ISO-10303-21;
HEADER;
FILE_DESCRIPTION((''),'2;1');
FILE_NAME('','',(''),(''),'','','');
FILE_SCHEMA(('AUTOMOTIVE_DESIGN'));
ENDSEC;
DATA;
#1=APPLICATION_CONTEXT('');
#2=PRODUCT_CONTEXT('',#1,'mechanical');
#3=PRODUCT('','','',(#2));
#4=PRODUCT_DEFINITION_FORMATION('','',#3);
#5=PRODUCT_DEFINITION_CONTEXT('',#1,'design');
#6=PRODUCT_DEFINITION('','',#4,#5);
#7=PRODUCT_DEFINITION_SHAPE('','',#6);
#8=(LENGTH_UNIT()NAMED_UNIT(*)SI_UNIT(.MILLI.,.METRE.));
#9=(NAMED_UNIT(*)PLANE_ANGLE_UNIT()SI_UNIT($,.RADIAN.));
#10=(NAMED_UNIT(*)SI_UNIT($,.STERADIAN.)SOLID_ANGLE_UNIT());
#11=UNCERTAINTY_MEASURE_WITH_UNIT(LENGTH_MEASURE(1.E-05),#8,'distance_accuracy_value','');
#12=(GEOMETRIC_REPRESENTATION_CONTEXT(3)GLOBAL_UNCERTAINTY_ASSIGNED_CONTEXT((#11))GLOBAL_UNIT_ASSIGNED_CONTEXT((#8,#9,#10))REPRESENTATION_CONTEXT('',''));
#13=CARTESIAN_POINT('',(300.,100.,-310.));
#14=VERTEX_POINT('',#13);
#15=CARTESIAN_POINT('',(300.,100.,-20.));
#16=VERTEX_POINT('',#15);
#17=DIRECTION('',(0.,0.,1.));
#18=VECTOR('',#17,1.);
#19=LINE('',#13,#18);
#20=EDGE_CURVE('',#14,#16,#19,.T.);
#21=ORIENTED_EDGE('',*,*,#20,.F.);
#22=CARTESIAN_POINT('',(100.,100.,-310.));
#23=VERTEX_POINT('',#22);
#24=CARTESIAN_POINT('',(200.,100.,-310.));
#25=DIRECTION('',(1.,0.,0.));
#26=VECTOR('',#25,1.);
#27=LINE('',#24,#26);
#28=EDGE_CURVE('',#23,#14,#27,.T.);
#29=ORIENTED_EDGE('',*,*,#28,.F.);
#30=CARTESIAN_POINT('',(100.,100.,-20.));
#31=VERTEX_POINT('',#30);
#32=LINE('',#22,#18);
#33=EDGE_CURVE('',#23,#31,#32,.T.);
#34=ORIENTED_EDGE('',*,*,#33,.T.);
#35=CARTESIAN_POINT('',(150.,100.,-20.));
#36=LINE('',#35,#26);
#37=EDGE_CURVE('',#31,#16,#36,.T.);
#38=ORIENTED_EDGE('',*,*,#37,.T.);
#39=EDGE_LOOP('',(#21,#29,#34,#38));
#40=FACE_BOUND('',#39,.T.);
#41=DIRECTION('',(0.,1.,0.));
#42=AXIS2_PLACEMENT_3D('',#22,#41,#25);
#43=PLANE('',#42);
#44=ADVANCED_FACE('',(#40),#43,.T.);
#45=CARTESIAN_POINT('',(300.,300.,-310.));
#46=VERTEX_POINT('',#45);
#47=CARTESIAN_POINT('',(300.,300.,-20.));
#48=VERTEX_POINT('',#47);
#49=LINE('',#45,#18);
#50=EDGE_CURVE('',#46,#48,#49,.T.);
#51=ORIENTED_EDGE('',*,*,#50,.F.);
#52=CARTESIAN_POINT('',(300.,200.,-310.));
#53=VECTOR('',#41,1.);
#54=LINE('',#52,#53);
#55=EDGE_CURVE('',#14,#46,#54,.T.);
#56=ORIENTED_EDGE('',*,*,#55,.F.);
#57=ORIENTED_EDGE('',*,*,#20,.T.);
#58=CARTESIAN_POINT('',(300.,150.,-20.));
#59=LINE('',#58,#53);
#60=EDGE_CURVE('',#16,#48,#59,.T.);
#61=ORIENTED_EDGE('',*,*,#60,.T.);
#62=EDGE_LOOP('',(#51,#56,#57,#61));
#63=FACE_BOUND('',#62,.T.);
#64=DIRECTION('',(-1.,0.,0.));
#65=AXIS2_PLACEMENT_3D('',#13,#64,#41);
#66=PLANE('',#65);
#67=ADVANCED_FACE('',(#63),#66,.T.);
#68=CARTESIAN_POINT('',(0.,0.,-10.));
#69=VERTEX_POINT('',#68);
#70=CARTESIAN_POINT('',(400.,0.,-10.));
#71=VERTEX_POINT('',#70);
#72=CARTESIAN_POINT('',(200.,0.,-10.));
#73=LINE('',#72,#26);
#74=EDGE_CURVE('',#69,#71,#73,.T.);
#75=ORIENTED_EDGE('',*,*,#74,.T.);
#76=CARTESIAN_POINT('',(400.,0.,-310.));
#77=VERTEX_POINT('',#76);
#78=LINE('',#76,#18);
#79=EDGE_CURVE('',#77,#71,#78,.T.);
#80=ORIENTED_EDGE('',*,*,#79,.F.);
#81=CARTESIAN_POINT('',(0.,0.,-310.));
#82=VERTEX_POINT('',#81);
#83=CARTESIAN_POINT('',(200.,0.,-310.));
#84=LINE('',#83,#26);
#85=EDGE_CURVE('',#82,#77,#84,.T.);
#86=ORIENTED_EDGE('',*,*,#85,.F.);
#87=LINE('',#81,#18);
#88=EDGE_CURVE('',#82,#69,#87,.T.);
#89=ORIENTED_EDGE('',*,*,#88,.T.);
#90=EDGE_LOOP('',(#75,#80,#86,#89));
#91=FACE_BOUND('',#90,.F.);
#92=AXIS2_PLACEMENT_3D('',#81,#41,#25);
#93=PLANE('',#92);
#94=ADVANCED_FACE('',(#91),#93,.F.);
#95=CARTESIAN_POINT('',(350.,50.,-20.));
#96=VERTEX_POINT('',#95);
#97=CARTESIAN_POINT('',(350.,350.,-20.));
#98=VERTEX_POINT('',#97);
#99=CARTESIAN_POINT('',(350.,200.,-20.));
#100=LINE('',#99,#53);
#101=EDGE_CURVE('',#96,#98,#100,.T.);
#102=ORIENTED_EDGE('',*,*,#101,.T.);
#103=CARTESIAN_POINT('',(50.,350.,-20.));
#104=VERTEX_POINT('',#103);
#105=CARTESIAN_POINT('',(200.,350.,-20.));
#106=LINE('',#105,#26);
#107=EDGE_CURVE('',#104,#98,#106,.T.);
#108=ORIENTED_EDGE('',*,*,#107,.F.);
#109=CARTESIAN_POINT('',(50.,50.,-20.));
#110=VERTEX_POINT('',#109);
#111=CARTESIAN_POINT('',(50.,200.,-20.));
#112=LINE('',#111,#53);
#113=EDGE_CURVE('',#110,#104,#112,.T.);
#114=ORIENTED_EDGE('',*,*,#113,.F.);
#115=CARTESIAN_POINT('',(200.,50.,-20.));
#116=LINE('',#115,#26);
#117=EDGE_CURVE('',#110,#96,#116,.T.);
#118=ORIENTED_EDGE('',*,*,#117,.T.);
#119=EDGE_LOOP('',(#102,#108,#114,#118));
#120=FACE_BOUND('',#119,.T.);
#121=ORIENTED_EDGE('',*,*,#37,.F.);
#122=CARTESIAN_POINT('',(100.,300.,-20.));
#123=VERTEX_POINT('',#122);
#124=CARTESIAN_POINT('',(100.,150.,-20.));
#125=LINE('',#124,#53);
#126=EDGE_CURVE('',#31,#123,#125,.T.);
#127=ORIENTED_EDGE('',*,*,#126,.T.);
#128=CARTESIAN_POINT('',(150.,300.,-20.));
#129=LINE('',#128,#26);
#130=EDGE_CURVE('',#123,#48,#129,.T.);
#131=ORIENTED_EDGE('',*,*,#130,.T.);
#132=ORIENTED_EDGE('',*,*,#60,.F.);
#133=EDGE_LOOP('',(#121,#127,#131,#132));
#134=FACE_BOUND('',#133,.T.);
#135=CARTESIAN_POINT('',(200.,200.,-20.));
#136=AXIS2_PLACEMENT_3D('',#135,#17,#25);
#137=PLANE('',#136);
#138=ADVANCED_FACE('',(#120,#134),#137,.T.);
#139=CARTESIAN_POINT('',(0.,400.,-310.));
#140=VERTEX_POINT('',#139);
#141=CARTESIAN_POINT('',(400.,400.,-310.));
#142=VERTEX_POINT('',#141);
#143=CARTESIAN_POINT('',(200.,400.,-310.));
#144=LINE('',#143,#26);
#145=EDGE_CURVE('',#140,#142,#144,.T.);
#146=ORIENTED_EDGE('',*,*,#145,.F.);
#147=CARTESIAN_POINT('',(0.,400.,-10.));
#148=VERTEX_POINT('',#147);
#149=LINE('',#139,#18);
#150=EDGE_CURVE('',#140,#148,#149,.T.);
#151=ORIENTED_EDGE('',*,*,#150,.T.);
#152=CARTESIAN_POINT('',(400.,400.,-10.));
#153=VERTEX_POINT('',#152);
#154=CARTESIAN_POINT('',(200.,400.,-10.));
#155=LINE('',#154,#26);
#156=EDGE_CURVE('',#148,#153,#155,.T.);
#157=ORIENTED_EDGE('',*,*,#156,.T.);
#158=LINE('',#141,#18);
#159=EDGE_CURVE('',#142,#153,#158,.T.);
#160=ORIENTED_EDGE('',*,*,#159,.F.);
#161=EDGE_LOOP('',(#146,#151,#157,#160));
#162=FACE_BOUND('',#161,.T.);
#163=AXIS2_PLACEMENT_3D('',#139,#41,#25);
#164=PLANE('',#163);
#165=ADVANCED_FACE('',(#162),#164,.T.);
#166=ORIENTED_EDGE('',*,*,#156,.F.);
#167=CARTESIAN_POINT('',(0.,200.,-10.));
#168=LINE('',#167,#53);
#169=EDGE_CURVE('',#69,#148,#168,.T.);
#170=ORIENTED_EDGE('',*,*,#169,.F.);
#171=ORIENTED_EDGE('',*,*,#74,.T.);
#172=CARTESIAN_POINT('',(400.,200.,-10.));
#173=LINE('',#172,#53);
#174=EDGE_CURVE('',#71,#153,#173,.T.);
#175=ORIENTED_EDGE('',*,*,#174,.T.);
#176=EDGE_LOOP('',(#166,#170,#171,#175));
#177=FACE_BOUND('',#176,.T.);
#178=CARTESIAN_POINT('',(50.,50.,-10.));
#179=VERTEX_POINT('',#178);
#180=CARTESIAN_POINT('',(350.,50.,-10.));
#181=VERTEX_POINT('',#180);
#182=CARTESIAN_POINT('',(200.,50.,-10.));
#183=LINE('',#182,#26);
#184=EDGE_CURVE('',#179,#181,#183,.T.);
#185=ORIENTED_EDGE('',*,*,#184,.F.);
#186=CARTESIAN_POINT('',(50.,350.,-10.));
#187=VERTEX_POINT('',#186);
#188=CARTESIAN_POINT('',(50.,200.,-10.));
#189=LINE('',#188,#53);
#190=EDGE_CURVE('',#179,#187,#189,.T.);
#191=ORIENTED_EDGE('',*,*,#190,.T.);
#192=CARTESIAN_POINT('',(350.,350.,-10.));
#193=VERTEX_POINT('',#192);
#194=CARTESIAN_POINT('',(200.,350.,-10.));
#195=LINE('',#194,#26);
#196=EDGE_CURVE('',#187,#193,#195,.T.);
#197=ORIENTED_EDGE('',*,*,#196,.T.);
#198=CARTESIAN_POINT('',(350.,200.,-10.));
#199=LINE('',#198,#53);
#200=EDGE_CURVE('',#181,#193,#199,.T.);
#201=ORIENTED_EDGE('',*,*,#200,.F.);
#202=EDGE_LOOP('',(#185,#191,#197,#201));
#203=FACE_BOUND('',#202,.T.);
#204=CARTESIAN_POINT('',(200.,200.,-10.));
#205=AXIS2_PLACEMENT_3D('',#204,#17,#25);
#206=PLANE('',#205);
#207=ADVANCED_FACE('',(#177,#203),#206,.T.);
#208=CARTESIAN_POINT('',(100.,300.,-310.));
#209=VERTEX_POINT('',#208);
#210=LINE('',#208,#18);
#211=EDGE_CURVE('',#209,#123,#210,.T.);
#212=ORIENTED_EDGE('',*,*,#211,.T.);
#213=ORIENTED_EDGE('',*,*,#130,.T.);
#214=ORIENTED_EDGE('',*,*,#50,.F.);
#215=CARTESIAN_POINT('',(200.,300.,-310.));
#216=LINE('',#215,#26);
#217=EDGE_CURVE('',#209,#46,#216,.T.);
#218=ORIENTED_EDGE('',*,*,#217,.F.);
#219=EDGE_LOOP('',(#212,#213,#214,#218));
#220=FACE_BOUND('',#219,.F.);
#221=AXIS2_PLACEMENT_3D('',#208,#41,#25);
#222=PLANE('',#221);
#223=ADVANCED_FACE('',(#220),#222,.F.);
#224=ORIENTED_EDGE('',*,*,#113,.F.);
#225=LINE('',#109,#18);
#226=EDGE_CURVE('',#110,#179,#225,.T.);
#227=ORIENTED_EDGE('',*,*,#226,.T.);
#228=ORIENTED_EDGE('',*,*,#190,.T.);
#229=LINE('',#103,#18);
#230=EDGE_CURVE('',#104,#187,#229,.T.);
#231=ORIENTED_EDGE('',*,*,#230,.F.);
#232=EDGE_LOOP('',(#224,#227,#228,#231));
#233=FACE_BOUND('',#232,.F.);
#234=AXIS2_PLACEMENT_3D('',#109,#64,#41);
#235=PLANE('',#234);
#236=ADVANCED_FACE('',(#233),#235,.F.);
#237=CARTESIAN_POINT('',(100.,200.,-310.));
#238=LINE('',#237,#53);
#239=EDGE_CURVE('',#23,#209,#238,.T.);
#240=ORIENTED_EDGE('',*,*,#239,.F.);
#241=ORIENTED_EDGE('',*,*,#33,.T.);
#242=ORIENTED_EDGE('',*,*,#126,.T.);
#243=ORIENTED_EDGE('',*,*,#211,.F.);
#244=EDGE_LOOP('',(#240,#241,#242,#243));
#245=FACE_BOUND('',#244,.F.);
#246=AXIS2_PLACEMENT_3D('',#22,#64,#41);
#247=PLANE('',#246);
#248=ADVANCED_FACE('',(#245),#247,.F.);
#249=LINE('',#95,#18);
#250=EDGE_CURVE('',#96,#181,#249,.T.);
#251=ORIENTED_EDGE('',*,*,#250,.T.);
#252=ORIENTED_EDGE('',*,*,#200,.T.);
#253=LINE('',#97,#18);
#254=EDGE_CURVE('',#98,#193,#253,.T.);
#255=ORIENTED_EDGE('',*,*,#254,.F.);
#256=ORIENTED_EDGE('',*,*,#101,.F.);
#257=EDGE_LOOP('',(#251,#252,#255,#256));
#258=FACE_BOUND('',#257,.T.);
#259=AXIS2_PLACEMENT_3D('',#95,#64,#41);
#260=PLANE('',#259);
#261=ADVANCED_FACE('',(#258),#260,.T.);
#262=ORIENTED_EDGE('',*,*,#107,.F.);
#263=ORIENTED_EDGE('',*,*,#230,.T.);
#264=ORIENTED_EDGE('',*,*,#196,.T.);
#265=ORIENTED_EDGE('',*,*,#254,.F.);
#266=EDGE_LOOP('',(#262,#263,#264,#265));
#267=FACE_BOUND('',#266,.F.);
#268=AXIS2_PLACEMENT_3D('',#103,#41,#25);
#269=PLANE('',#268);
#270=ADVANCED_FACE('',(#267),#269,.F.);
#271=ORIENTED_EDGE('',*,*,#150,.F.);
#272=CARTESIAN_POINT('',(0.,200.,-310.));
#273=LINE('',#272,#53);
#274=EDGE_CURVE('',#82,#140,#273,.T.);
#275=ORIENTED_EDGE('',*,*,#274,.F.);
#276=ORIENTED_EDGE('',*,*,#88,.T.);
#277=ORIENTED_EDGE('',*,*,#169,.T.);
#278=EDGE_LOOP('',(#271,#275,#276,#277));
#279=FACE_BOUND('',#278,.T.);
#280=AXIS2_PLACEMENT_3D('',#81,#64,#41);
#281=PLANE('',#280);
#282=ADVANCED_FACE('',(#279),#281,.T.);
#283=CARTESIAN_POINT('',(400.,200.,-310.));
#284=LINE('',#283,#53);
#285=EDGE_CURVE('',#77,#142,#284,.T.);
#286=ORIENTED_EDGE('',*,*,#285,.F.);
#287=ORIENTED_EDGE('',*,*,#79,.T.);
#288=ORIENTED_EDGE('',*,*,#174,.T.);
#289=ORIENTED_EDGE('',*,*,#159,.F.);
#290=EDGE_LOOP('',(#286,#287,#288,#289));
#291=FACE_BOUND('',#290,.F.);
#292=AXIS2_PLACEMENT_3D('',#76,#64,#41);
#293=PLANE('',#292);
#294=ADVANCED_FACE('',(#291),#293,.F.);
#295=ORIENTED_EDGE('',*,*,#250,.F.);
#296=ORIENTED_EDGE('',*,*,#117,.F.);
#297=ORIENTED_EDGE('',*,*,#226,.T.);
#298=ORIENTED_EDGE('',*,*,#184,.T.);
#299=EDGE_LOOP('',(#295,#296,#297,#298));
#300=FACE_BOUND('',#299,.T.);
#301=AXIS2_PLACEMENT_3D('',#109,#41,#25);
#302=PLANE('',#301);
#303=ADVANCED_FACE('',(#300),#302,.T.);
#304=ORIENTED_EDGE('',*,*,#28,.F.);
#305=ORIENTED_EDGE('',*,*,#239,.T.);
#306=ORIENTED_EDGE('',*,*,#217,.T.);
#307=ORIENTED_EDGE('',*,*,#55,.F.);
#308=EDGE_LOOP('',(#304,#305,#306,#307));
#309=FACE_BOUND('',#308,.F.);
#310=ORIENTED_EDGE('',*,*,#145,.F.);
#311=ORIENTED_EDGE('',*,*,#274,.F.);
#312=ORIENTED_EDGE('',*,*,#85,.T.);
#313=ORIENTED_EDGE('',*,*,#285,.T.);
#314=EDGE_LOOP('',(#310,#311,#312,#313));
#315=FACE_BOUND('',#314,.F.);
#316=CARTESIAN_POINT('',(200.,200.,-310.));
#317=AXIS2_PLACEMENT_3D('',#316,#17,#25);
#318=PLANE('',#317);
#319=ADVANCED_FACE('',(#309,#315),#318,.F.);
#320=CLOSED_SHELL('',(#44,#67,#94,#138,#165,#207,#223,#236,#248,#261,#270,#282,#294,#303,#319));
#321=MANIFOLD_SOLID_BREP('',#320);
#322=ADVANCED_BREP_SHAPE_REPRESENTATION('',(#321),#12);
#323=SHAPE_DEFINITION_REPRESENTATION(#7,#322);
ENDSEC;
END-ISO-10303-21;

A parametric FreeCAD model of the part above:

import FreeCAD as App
import Part
import Sketcher

V = App.Vector

doc = App.newDocument("Part")
body = doc.addObject("PartDesign::Body", "Body")

# Sketch on XY plane
sketch1 = body.newObject("Sketcher::SketchObject", "Sketch")
sketch1.AttachmentSupport = (doc.getObject("XY_Plane"), [""])
sketch1.MapMode = "FlatFace"
sketch1.AttachmentOffset = App.Placement(V(0, 0, -20), App.Rotation())
sketch1.addGeometry(Part.LineSegment(V(50, 350, 0), V(50, 50, 0)), False)
sketch1.addGeometry(Part.LineSegment(V(50, 50, 0), V(350, 50, 0)), False)
sketch1.addGeometry(Part.LineSegment(V(350, 50, 0), V(350, 350, 0)), False)
sketch1.addGeometry(Part.LineSegment(V(350, 350, 0), V(50, 350, 0)), False)
sketch1.addConstraint(Sketcher.Constraint("Coincident", 0, 2, 1, 1))
sketch1.addConstraint(Sketcher.Constraint("Coincident", 1, 2, 2, 1))
sketch1.addConstraint(Sketcher.Constraint("Coincident", 2, 2, 3, 1))
sketch1.addConstraint(Sketcher.Constraint("Coincident", 3, 2, 0, 1))
sketch1.addConstraint(Sketcher.Constraint("Vertical", 0))
sketch1.addConstraint(Sketcher.Constraint("Horizontal", 1))
sketch1.addConstraint(Sketcher.Constraint("Vertical", 2))
sketch1.addConstraint(Sketcher.Constraint("Horizontal", 3))
sketch1.addConstraint(Sketcher.Constraint("Equal", 3, 0))
sketch1.addConstraint(Sketcher.Constraint("DistanceX", 1, 1, 1, 2, 300.0))
sketch1.addConstraint(Sketcher.Constraint("DistanceX", -1, 1, 0, 2, 50.0))
sketch1.addConstraint(Sketcher.Constraint("DistanceY", -1, 1, 0, 2, 50.0))
pad1 = body.newObject("PartDesign::Pad", "Pad")
pad1.Profile = sketch1
pad1.Length = 10
body2 = doc.addObject("PartDesign::Body", "Body001")

# Sketch on XY plane
sketch2 = body2.newObject("Sketcher::SketchObject", "Sketch001")
sketch2.AttachmentSupport = (doc.getObject("XY_Plane001"), [""])
sketch2.MapMode = "FlatFace"
sketch2.AttachmentOffset = App.Placement(V(0, 0, -310), App.Rotation())
sketch2.addGeometry(Part.LineSegment(V(100, 300, 0), V(100, 100, 0)), False)
sketch2.addGeometry(Part.LineSegment(V(100, 100, 0), V(300, 100, 0)), False)
sketch2.addGeometry(Part.LineSegment(V(300, 100, 0), V(300, 300, 0)), False)
sketch2.addGeometry(Part.LineSegment(V(300, 300, 0), V(100, 300, 0)), False)
sketch2.addConstraint(Sketcher.Constraint("Coincident", 0, 2, 1, 1))
sketch2.addConstraint(Sketcher.Constraint("Coincident", 1, 2, 2, 1))
sketch2.addConstraint(Sketcher.Constraint("Coincident", 2, 2, 3, 1))
sketch2.addConstraint(Sketcher.Constraint("Coincident", 3, 2, 0, 1))
sketch2.addConstraint(Sketcher.Constraint("Vertical", 0))
sketch2.addConstraint(Sketcher.Constraint("Horizontal", 1))
sketch2.addConstraint(Sketcher.Constraint("Vertical", 2))
sketch2.addConstraint(Sketcher.Constraint("Horizontal", 3))
sketch2.addConstraint(Sketcher.Constraint("Equal", 3, 0))
sketch2.addConstraint(Sketcher.Constraint("DistanceX", 1, 1, 1, 2, 200.0))
sketch2.addConstraint(Sketcher.Constraint("DistanceX", -1, 1, 0, 2, 100.0))
sketch2.addConstraint(Sketcher.Constraint("DistanceY", -1, 1, 0, 2, 100.0))
pad2 = body2.newObject("PartDesign::Pad", "Pad001")
pad2.Profile = sketch2
pad2.Length = 300
body3 = doc.addObject("PartDesign::Body", "Body002")

# Sketch on XY plane
sketch3 = body3.newObject("Sketcher::SketchObject", "Sketch002")
sketch3.AttachmentSupport = (doc.getObject("XY_Plane002"), [""])
sketch3.MapMode = "FlatFace"
sketch3.AttachmentOffset = App.Placement(V(0, 0, -310), App.Rotation())
sketch3.addGeometry(Part.LineSegment(V(0, 400, 0), V(0, 0, 0)), False)
sketch3.addGeometry(Part.LineSegment(V(0, 0, 0), V(400, 0, 0)), False)
sketch3.addGeometry(Part.LineSegment(V(400, 0, 0), V(400, 400, 0)), False)
sketch3.addGeometry(Part.LineSegment(V(400, 400, 0), V(0, 400, 0)), False)
sketch3.addConstraint(Sketcher.Constraint("Coincident", 0, 2, 1, 1))
sketch3.addConstraint(Sketcher.Constraint("Coincident", 1, 2, 2, 1))
sketch3.addConstraint(Sketcher.Constraint("Coincident", 2, 2, 3, 1))
sketch3.addConstraint(Sketcher.Constraint("Coincident", 3, 2, 0, 1))
sketch3.addConstraint(Sketcher.Constraint("Vertical", 0))
sketch3.addConstraint(Sketcher.Constraint("Horizontal", 1))
sketch3.addConstraint(Sketcher.Constraint("Vertical", 2))
sketch3.addConstraint(Sketcher.Constraint("Horizontal", 3))
sketch3.addConstraint(Sketcher.Constraint("Coincident", 0, 2, -1, 1))
sketch3.addConstraint(Sketcher.Constraint("Equal", 3, 0))
sketch3.addConstraint(Sketcher.Constraint("DistanceX", 1, 1, 1, 2, 400.0))
pad3 = body3.newObject("PartDesign::Pad", "Pad002")
pad3.Profile = sketch3
pad3.Length = 300
doc.recompute()

boolean = body3.newObject("PartDesign::Boolean", "Boolean")
boolean.Type = "Cut"
boolean.addObjects([body2])
doc.recompute()

boolean2 = body3.newObject("PartDesign::Boolean", "Boolean001")
boolean2.Type = "Cut"
boolean2.addObjects([body])

doc.recompute()
